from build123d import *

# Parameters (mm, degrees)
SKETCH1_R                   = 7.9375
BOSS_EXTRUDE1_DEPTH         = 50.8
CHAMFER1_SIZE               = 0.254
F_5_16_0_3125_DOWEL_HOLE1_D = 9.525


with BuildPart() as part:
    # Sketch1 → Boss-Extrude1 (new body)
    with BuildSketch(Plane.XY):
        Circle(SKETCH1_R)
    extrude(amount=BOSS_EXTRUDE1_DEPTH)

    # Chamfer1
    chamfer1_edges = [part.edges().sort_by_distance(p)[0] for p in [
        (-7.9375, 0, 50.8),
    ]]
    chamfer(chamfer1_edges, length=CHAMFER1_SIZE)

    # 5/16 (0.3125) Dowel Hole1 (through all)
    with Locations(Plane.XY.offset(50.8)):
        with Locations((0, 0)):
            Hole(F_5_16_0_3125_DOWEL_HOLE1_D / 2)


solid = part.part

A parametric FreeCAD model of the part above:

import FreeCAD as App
import Part
import Sketcher

V = App.Vector
Q = App.Units.Quantity


def edges_at(feature, points):
    """Names of the edges that pass closest to the given points."""
    edges = feature.Shape.Edges
    near = lambda p: min(range(len(edges)), key=lambda i: edges[i].distToShape(Part.Vertex(*p))[0])
    return sorted({f"Edge{near(p) + 1}" for p in points})

doc = App.newDocument("Part")
params = doc.addObject("Spreadsheet::Sheet", "Params")
for row, (alias, value) in enumerate([
    ("sketch1_diameter", "0.625 in"),
    ("pad1_length", "2 in"),
    ("chamfer_size", "0.01 in"),
    ("sketch2_diameter", "0.375 in"),
    ("hole_diameter", "0.375 in"),
], start=1):
    params.set(f"A{row}", alias)
    params.set(f"B{row}", "=" + value)
    params.setAlias(f"B{row}", alias)

body = doc.addObject("PartDesign::Body", "Body")

# Sketch on XY plane
sketch1 = body.newObject("Sketcher::SketchObject", "Sketch")
sketch1.AttachmentSupport = (doc.getObject("XY_Plane"), [""])
sketch1.MapMode = "FlatFace"
sketch1.addGeometry(Part.Circle(V(0, 0, 0), V(0, 0, 1), 7.9375), False)
sketch1.addConstraint([
    Sketcher.Constraint("Coincident", 0, 3, -1, 1),
    Sketcher.Constraint("Diameter", 0, Q("0.625 in")),
])
sketch1.setExpression("Constraints[1]", "Params.sketch1_diameter")
pad1 = body.newObject("PartDesign::Pad", "Pad")
pad1.Profile = sketch1
pad1.setExpression("Length", "Params.pad1_length")
doc.recompute()

chamfer = body.newObject("PartDesign::Chamfer", "Chamfer")
chamfer.Base = (pad1, edges_at(pad1, [(-7.938, 0, 50.8)]))
chamfer.setExpression("Size", "Params.chamfer_size")

# Sketch on XY plane
sketch2 = body.newObject("Sketcher::SketchObject", "Sketch001")
sketch2.AttachmentSupport = (doc.getObject("XY_Plane"), [""])
sketch2.MapMode = "FlatFace"
sketch2.AttachmentOffset = App.Placement(V(0, 0, 2 * 25.4), App.Rotation())
sketch2.addGeometry(Part.Circle(V(0, 0, 0), V(0, 0, 1), 4.7625), False)
sketch2.addConstraint([
    Sketcher.Constraint("Coincident", 0, 3, -1, 1),
    Sketcher.Constraint("Diameter", 0, Q("0.375 in")),
])
sketch2.setExpression("Constraints[1]", "Params.sketch2_diameter")
doc.recompute()
hole = body.newObject("PartDesign::Hole", "Hole")
hole.Profile = sketch2
hole.ThreadType = "None"
hole.setExpression("Diameter", "Params.hole_diameter")
hole.DepthType = "ThroughAll"

doc.recompute()
